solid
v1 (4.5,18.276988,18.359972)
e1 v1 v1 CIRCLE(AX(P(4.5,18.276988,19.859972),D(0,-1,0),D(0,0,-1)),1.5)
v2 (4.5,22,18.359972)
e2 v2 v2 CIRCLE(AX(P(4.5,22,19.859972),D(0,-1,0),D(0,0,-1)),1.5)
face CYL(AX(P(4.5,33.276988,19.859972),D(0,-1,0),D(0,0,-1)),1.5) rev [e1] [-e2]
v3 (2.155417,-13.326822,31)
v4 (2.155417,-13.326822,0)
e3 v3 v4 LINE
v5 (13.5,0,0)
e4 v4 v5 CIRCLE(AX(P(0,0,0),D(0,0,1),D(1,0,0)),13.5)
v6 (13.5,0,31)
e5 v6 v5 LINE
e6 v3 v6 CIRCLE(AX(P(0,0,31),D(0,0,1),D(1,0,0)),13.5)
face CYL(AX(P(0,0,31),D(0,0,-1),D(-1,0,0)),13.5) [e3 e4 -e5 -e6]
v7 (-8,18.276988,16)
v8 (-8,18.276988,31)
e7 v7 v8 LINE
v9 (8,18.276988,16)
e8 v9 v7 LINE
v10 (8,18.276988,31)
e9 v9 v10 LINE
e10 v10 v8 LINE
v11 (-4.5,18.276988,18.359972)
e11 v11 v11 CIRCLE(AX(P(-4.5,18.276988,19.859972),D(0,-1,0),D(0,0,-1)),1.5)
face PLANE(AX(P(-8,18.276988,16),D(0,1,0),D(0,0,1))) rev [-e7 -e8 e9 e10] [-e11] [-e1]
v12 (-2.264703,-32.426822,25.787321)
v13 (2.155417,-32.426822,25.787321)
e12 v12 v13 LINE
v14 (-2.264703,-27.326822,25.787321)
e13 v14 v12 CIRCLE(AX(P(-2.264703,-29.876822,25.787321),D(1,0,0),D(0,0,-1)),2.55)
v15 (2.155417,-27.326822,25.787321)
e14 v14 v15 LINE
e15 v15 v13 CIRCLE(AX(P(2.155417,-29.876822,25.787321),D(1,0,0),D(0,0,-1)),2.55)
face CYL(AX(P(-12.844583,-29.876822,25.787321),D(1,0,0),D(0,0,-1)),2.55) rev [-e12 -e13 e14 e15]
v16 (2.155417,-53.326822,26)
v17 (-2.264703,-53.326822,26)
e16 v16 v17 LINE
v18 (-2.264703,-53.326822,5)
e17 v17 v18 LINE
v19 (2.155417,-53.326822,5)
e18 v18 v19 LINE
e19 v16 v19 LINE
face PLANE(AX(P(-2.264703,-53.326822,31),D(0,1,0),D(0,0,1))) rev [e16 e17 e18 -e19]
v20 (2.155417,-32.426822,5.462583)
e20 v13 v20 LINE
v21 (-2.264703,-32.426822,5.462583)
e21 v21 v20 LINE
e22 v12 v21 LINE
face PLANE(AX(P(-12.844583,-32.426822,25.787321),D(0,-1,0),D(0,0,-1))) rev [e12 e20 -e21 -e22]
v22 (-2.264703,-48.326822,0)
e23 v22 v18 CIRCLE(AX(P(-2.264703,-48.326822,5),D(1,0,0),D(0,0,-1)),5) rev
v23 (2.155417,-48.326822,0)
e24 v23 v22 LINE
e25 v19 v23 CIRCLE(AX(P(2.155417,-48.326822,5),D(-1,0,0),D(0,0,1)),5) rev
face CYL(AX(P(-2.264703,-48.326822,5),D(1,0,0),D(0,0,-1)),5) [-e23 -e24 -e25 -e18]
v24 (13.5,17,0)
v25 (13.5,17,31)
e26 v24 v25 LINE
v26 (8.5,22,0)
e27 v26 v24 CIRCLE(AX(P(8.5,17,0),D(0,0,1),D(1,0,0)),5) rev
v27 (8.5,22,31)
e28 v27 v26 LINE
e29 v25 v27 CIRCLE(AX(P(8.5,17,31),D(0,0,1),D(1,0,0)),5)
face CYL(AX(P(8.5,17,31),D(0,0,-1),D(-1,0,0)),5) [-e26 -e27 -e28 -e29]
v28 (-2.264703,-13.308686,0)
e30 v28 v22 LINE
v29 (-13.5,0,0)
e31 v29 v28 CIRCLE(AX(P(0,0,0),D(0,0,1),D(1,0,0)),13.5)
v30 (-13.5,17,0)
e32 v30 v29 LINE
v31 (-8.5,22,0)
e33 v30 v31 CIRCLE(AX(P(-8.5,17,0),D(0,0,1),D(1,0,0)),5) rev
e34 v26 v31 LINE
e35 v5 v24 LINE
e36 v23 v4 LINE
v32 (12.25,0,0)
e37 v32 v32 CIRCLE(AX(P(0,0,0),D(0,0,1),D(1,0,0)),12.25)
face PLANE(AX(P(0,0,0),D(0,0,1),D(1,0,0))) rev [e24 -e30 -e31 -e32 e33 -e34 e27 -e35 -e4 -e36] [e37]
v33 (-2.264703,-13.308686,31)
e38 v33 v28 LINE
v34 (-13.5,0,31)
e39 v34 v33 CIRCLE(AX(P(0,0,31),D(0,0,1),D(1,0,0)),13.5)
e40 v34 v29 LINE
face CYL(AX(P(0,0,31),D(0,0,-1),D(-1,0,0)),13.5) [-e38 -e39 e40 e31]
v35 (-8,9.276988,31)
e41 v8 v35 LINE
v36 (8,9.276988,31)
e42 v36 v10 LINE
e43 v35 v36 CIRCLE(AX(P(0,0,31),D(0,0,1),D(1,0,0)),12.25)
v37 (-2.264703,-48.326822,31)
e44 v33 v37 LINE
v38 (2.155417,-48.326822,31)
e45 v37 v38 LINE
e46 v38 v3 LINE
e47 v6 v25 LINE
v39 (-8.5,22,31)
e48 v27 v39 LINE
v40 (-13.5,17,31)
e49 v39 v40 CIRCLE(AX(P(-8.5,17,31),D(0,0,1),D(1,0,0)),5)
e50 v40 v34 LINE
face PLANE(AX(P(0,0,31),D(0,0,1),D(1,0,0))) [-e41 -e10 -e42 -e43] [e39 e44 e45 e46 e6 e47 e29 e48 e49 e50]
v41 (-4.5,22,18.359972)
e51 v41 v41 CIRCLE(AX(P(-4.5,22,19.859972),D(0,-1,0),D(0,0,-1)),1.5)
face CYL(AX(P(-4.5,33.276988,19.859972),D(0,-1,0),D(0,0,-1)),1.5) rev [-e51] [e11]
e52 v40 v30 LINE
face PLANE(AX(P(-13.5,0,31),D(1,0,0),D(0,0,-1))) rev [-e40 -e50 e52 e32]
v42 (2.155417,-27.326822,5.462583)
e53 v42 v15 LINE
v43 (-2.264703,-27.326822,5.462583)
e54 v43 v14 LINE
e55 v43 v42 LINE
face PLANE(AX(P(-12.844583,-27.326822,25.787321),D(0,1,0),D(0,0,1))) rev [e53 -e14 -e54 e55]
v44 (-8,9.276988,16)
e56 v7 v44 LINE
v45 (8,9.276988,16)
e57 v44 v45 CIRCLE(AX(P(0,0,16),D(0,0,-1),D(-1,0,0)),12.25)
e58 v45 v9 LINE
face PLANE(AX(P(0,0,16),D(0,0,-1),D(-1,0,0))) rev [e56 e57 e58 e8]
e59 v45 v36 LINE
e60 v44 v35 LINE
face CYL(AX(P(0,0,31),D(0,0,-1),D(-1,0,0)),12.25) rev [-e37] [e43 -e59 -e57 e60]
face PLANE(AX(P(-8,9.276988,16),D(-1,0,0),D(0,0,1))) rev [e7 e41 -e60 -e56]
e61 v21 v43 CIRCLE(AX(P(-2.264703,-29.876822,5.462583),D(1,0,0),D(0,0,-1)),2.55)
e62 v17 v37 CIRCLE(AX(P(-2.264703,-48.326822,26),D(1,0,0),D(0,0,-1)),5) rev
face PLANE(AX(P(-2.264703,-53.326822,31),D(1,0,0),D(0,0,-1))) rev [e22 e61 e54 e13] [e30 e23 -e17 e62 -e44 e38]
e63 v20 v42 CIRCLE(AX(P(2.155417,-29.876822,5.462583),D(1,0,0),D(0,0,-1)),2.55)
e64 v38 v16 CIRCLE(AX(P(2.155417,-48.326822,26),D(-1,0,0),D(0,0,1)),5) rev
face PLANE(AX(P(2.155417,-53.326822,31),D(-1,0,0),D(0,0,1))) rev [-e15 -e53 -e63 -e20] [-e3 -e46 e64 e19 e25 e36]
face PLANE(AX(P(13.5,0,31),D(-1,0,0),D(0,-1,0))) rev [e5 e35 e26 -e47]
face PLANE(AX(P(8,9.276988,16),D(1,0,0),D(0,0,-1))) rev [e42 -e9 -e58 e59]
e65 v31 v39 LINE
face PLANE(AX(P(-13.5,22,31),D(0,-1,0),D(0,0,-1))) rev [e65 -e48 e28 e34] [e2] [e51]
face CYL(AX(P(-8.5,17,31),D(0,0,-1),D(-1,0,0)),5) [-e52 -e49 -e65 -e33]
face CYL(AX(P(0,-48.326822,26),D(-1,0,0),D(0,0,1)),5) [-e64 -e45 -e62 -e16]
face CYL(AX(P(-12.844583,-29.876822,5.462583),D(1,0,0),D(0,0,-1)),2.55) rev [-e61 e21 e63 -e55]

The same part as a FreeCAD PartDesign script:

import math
import FreeCAD as App
import Part
import Sketcher
from FreeCAD import Vector
Q = App.Units.Quantity


def edges_at(feature, points):
    """Names of the edges that pass closest to the given points."""
    edges = feature.Shape.Edges
    near = lambda p: min(range(len(edges)), key=lambda i: edges[i].distToShape(Part.Vertex(*p))[0])
    return sorted({f"Edge{near(p) + 1}" for p in points})

doc = App.newDocument("Part")
body = doc.addObject("PartDesign::Body", "Body")

sketch1 = doc.addObject("Sketcher::SketchObject", "Sketch")
body.addObject(sketch1)
sketch1.AttachmentSupport = (doc.XY_Plane, [""])
sketch1.MapMode = "FlatFace"
sketch1.addGeometry([
    Part.LineSegment(Vector(-13.5, 22, 0), Vector(-13.5, 0, 0)),
    Part.ArcOfCircle(Part.Circle(Vector(0, 0, 0), Vector(0, 0, 1), 13.5), math.radians(180), math.radians(260.34264)),
    Part.LineSegment(Vector(-2.264703, -13.308686, 0), Vector(-2.264703, -53.326822, 0)),
    Part.LineSegment(Vector(-2.264703, -53.326822, 0), Vector(2.155417, -53.326822, 0)),
    Part.LineSegment(Vector(2.155417, -53.326822, 0), Vector(2.155417, -13.326822, 0)),
    Part.ArcOfCircle(Part.Circle(Vector(0, 0, 0), Vector(0, 0, 1), 13.5), math.radians(-80.812808), math.radians(0)),
    Part.LineSegment(Vector(13.5, 0, 0), Vector(13.5, 22, 0)),
    Part.LineSegment(Vector(13.5, 22, 0), Vector(-13.5, 22, 0)),
    Part.Circle(Vector(0, 0, 0), Vector(0, 0, 1), 12.25),
], False)
sketch1.addConstraint([
    Sketcher.Constraint("Tangent", 0, 2, 1, 1),
    Sketcher.Constraint("Coincident", 1, 2, 2, 1),
    Sketcher.Constraint("Coincident", 2, 2, 3, 1),
    Sketcher.Constraint("Coincident", 3, 2, 4, 1),
    Sketcher.Constraint("Coincident", 4, 2, 5, 1),
    Sketcher.Constraint("Tangent", 5, 2, 6, 1),
    Sketcher.Constraint("Coincident", 6, 2, 7, 1),
    Sketcher.Constraint("Coincident", 7, 2, 0, 1),
    Sketcher.Constraint("Vertical", 0),
    Sketcher.Constraint("Vertical", 2),
    Sketcher.Constraint("Horizontal", 3),
    Sketcher.Constraint("Vertical", 4),
    Sketcher.Constraint("Vertical", 6),
    Sketcher.Constraint("Horizontal", 7),
    Sketcher.Constraint("Coincident", 1, 3, -1, 1),
    Sketcher.Constraint("Coincident", 5, 3, -1, 1),
    Sketcher.Constraint("Coincident", 8, 3, -1, 1),
    Sketcher.Constraint("Equal", 1, 5),
    Sketcher.Constraint("Diameter", 8, Q("24.5 mm")),
    Sketcher.Constraint("Radius", 1, Q("13.5 mm")),
    Sketcher.Constraint("DistanceY", 0, 2, 0, 1, Q("22 mm")),
    Sketcher.Constraint("DistanceY", 4, 1, 4, 2, Q("40 mm")),
    Sketcher.Constraint("DistanceX", 3, 1, 3, 2, Q("4.42012 mm")),
    Sketcher.Constraint("DistanceY", 2, 2, 2, 1, Q("40.018136 mm")),
])
pad1 = doc.addObject("PartDesign::Pad", "Pad")
body.addObject(pad1)
pad1.Profile = sketch1
pad1.Length = 31

sketch2 = doc.addObject("Sketcher::SketchObject", "Sketch001")
body.addObject(sketch2)
sketch2.AttachmentSupport = (doc.XY_Plane, [""])
sketch2.MapMode = "FlatFace"
sketch2.AttachmentOffset = App.Placement(Vector(0, 0, 31), App.Rotation())
sketch2.addGeometry([
    Part.LineSegment(Vector(-8, 18.276988, 0), Vector(-8, 9.276988, 0)),
    Part.LineSegment(Vector(-8, 9.276988, 0), Vector(8, 9.276988, 0)),
    Part.LineSegment(Vector(8, 9.276988, 0), Vector(8, 18.276988, 0)),
    Part.LineSegment(Vector(8, 18.276988, 0), Vector(-8, 18.276988, 0)),
], False)
sketch2.addConstraint([
    Sketcher.Constraint("Coincident", 0, 2, 1, 1),
    Sketcher.Constraint("Coincident", 1, 2, 2, 1),
    Sketcher.Constraint("Coincident", 2, 2, 3, 1),
    Sketcher.Constraint("Coincident", 3, 2, 0, 1),
    Sketcher.Constraint("Vertical", 0),
    Sketcher.Constraint("Horizontal", 1),
    Sketcher.Constraint("Vertical", 2),
    Sketcher.Constraint("Horizontal", 3),
    Sketcher.Constraint("DistanceX", 1, 1, 1, 2, Q("16 mm")),
    Sketcher.Constraint("DistanceY", 0, 2, 0, 1, Q("9 mm")),
    Sketcher.Constraint("DistanceX", 0, 2, -1, 1, Q("8 mm")),
    Sketcher.Constraint("DistanceY", -1, 1, 0, 2, Q("9.276988 mm")),
])
pocket1 = doc.addObject("PartDesign::Pocket", "Pocket")
body.addObject(pocket1)
pocket1.Profile = sketch2
pocket1.Length = 15

sketch3 = doc.addObject("Sketcher::SketchObject", "Sketch002")
body.addObject(sketch3)
sketch3.AttachmentSupport = (doc.XZ_Plane, [""])
sketch3.MapMode = "FlatFace"
sketch3.AttachmentOffset = App.Placement(Vector(0, 0, -18.276988), App.Rotation())
sketch3.addGeometry([
    Part.Circle(Vector(-4.5, 19.859972, 0), Vector(0, 0, 1), 1.5),
    Part.Circle(Vector(4.5, 19.859972, 0), Vector(0, 0, 1), 1.5),
], False)
sketch3.addConstraint([
    Sketcher.Constraint("Equal", 0, 1),
    Sketcher.Constraint("Symmetric", 0, 3, 1, 3, -2),
    Sketcher.Constraint("Diameter", 0, Q("3 mm")),
    Sketcher.Constraint("DistanceX", 0, 3, 1, 3, Q("9 mm")),
    Sketcher.Constraint("DistanceY", -1, 1, 0, 3, Q("19.859972 mm")),
])
pocket2 = doc.addObject("PartDesign::Pocket", "Pocket001")
body.addObject(pocket2)
pocket2.Profile = sketch3
pocket2.Length = 15

sketch4 = doc.addObject("Sketcher::SketchObject", "Sketch003")
body.addObject(sketch4)
sketch4.AttachmentSupport = (doc.YZ_Plane, [""])
sketch4.MapMode = "FlatFace"
sketch4.AttachmentOffset = App.Placement(Vector(0, 0, 2.155417), App.Rotation())
sketch4.addGeometry([
    Part.LineSegment(Vector(-27.326822, 5.462583, 0), Vector(-27.326822, 25.787321, 0)),
    Part.ArcOfCircle(Part.Circle(Vector(-29.876822, 25.787321, 0), Vector(0, 0, 1), 2.55), math.radians(0), math.radians(180)),
    Part.LineSegment(Vector(-32.426822, 25.787321, 0), Vector(-32.426822, 5.462583, 0)),
    Part.ArcOfCircle(Part.Circle(Vector(-29.876822, 5.462583, 0), Vector(0, 0, 1), 2.55), math.radians(180), math.radians(360)),
], False)
sketch4.addConstraint([
    Sketcher.Constraint("Tangent", 0, 2, 1, 1),
    Sketcher.Constraint("Tangent", 1, 2, 2, 1),
    Sketcher.Constraint("Tangent", 2, 2, 3, 1),
    Sketcher.Constraint("Tangent", 3, 2, 0, 1),
    Sketcher.Constraint("Vertical", 0),
    Sketcher.Constraint("Vertical", 2),
    Sketcher.Constraint("Radius", 1, Q("2.55 mm")),
    Sketcher.Constraint("DistanceY", 0, 1, 0, 2, Q("20.324738 mm")),
    Sketcher.Constraint("DistanceX", 1, 3, -1, 1, Q("29.876822 mm")),
    Sketcher.Constraint("DistanceY", -1, 1, 1, 3, Q("25.787321 mm")),
])
pocket3 = doc.addObject("PartDesign::Pocket", "Pocket002")
body.addObject(pocket3)
pocket3.Profile = sketch4
pocket3.Length = 15
doc.recompute()

fillet = doc.addObject("PartDesign::Fillet", "Fillet")
body.addObject(fillet)
fillet.Base = (pocket3, edges_at(pocket3, [
    (-0.055, -53.327, 0),
    (-0.055, -53.327, 31),
    (-13.5, 22, 15.5),
    (13.5, 22, 15.5),
]))
fillet.Radius = 5

doc.recompute()
